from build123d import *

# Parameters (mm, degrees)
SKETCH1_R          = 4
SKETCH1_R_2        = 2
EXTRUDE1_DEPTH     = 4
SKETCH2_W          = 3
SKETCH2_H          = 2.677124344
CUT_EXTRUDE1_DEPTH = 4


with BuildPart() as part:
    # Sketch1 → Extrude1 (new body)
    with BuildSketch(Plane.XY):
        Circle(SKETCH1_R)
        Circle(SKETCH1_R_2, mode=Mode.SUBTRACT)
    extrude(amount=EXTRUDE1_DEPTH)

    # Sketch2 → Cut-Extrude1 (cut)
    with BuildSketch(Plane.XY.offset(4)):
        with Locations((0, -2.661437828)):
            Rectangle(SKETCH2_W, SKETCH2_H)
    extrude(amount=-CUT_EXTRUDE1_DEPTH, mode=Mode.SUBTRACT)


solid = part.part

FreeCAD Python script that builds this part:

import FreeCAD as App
import Part
import Sketcher
from FreeCAD import Vector


def add_polygon(sketch, points):
    """Adds a closed chain of lines whose ends are joined by coincident constraints."""
    first, n = sketch.GeometryCount, len(points)
    for a, b in zip(points, points[1:] + points[:1]):
        sketch.addGeometry(Part.LineSegment(App.Vector(*a, 0), App.Vector(*b, 0)), False)
    for i in range(n):
        sketch.addConstraint(Sketcher.Constraint("Coincident", first + i, 2, first + (i + 1) % n, 1))

doc = App.newDocument("Part")
params = doc.addObject("Spreadsheet::Sheet", "Params")
for row, (alias, value) in enumerate([
    ("sketch1_diameter", "8 mm"),
    ("sketch1_diameter2", "4 mm"),
    ("pad1_length", "4 mm"),
    ("sketch2_width", "3 mm"),
    ("pocket1_length", "4 mm"),
], start=1):
    params.set(f"A{row}", alias)
    params.set(f"B{row}", "=" + value)
    params.setAlias(f"B{row}", alias)

body = doc.addObject("PartDesign::Body", "Body")

sketch1 = body.newObject("Sketcher::SketchObject", "Sketch")
sketch1.AttachmentSupport = (doc.getObject("XY_Plane"), [""])
sketch1.MapMode = "FlatFace"
sketch1.addGeometry([
    Part.Circle(Vector(0, 0, 0), Vector(0, 0, 1), 4),
    Part.Circle(Vector(0, 0, 0), Vector(0, 0, 1), 2),
], False)
sketch1.addConstraint([
    Sketcher.Constraint("Coincident", 0, 3, -1, 1),
    Sketcher.Constraint("Coincident", 1, 3, -1, 1),
    Sketcher.Constraint("Diameter", 0, 8.0),
    Sketcher.Constraint("Diameter", 1, 4.0),
])
sketch1.setExpression("Constraints[2]", "Params.sketch1_diameter")
sketch1.setExpression("Constraints[3]", "Params.sketch1_diameter2")
pad1 = body.newObject("PartDesign::Pad", "Pad")
pad1.Profile = sketch1
pad1.setExpression("Length", "Params.pad1_length")

sketch2 = body.newObject("Sketcher::SketchObject", "Sketch001")
sketch2.AttachmentSupport = (doc.getObject("XY_Plane"), [""])
sketch2.MapMode = "FlatFace"
sketch2.AttachmentOffset = App.Placement(Vector(0, 0, 4), App.Rotation())
add_polygon(sketch2, [(-1.5, -1.3), (-1.5, -4), (1.5, -4), (1.5, -1.3)])
sketch2.addConstraint([
    Sketcher.Constraint("Vertical", 0),
    Sketcher.Constraint("Horizontal", 1),
    Sketcher.Constraint("Vertical", 2),
    Sketcher.Constraint("Horizontal", 3),
    Sketcher.Constraint("DistanceX", 1, 1, 1, 2, 3.0),
    Sketcher.Constraint("DistanceY", 0, 2, -1, 1, 4.0),
    Sketcher.Constraint("DistanceX", 0, 2, -1, 1, 1.5),
    Sketcher.Constraint("DistanceY", 0, 2, 0, 1, 2.677124),
])
sketch2.setExpression("Constraints[8]", "Params.sketch2_width")
pocket1 = body.newObject("PartDesign::Pocket", "Pocket")
pocket1.Profile = sketch2
pocket1.setExpression("Length", "Params.pocket1_length")

doc.recompute()
